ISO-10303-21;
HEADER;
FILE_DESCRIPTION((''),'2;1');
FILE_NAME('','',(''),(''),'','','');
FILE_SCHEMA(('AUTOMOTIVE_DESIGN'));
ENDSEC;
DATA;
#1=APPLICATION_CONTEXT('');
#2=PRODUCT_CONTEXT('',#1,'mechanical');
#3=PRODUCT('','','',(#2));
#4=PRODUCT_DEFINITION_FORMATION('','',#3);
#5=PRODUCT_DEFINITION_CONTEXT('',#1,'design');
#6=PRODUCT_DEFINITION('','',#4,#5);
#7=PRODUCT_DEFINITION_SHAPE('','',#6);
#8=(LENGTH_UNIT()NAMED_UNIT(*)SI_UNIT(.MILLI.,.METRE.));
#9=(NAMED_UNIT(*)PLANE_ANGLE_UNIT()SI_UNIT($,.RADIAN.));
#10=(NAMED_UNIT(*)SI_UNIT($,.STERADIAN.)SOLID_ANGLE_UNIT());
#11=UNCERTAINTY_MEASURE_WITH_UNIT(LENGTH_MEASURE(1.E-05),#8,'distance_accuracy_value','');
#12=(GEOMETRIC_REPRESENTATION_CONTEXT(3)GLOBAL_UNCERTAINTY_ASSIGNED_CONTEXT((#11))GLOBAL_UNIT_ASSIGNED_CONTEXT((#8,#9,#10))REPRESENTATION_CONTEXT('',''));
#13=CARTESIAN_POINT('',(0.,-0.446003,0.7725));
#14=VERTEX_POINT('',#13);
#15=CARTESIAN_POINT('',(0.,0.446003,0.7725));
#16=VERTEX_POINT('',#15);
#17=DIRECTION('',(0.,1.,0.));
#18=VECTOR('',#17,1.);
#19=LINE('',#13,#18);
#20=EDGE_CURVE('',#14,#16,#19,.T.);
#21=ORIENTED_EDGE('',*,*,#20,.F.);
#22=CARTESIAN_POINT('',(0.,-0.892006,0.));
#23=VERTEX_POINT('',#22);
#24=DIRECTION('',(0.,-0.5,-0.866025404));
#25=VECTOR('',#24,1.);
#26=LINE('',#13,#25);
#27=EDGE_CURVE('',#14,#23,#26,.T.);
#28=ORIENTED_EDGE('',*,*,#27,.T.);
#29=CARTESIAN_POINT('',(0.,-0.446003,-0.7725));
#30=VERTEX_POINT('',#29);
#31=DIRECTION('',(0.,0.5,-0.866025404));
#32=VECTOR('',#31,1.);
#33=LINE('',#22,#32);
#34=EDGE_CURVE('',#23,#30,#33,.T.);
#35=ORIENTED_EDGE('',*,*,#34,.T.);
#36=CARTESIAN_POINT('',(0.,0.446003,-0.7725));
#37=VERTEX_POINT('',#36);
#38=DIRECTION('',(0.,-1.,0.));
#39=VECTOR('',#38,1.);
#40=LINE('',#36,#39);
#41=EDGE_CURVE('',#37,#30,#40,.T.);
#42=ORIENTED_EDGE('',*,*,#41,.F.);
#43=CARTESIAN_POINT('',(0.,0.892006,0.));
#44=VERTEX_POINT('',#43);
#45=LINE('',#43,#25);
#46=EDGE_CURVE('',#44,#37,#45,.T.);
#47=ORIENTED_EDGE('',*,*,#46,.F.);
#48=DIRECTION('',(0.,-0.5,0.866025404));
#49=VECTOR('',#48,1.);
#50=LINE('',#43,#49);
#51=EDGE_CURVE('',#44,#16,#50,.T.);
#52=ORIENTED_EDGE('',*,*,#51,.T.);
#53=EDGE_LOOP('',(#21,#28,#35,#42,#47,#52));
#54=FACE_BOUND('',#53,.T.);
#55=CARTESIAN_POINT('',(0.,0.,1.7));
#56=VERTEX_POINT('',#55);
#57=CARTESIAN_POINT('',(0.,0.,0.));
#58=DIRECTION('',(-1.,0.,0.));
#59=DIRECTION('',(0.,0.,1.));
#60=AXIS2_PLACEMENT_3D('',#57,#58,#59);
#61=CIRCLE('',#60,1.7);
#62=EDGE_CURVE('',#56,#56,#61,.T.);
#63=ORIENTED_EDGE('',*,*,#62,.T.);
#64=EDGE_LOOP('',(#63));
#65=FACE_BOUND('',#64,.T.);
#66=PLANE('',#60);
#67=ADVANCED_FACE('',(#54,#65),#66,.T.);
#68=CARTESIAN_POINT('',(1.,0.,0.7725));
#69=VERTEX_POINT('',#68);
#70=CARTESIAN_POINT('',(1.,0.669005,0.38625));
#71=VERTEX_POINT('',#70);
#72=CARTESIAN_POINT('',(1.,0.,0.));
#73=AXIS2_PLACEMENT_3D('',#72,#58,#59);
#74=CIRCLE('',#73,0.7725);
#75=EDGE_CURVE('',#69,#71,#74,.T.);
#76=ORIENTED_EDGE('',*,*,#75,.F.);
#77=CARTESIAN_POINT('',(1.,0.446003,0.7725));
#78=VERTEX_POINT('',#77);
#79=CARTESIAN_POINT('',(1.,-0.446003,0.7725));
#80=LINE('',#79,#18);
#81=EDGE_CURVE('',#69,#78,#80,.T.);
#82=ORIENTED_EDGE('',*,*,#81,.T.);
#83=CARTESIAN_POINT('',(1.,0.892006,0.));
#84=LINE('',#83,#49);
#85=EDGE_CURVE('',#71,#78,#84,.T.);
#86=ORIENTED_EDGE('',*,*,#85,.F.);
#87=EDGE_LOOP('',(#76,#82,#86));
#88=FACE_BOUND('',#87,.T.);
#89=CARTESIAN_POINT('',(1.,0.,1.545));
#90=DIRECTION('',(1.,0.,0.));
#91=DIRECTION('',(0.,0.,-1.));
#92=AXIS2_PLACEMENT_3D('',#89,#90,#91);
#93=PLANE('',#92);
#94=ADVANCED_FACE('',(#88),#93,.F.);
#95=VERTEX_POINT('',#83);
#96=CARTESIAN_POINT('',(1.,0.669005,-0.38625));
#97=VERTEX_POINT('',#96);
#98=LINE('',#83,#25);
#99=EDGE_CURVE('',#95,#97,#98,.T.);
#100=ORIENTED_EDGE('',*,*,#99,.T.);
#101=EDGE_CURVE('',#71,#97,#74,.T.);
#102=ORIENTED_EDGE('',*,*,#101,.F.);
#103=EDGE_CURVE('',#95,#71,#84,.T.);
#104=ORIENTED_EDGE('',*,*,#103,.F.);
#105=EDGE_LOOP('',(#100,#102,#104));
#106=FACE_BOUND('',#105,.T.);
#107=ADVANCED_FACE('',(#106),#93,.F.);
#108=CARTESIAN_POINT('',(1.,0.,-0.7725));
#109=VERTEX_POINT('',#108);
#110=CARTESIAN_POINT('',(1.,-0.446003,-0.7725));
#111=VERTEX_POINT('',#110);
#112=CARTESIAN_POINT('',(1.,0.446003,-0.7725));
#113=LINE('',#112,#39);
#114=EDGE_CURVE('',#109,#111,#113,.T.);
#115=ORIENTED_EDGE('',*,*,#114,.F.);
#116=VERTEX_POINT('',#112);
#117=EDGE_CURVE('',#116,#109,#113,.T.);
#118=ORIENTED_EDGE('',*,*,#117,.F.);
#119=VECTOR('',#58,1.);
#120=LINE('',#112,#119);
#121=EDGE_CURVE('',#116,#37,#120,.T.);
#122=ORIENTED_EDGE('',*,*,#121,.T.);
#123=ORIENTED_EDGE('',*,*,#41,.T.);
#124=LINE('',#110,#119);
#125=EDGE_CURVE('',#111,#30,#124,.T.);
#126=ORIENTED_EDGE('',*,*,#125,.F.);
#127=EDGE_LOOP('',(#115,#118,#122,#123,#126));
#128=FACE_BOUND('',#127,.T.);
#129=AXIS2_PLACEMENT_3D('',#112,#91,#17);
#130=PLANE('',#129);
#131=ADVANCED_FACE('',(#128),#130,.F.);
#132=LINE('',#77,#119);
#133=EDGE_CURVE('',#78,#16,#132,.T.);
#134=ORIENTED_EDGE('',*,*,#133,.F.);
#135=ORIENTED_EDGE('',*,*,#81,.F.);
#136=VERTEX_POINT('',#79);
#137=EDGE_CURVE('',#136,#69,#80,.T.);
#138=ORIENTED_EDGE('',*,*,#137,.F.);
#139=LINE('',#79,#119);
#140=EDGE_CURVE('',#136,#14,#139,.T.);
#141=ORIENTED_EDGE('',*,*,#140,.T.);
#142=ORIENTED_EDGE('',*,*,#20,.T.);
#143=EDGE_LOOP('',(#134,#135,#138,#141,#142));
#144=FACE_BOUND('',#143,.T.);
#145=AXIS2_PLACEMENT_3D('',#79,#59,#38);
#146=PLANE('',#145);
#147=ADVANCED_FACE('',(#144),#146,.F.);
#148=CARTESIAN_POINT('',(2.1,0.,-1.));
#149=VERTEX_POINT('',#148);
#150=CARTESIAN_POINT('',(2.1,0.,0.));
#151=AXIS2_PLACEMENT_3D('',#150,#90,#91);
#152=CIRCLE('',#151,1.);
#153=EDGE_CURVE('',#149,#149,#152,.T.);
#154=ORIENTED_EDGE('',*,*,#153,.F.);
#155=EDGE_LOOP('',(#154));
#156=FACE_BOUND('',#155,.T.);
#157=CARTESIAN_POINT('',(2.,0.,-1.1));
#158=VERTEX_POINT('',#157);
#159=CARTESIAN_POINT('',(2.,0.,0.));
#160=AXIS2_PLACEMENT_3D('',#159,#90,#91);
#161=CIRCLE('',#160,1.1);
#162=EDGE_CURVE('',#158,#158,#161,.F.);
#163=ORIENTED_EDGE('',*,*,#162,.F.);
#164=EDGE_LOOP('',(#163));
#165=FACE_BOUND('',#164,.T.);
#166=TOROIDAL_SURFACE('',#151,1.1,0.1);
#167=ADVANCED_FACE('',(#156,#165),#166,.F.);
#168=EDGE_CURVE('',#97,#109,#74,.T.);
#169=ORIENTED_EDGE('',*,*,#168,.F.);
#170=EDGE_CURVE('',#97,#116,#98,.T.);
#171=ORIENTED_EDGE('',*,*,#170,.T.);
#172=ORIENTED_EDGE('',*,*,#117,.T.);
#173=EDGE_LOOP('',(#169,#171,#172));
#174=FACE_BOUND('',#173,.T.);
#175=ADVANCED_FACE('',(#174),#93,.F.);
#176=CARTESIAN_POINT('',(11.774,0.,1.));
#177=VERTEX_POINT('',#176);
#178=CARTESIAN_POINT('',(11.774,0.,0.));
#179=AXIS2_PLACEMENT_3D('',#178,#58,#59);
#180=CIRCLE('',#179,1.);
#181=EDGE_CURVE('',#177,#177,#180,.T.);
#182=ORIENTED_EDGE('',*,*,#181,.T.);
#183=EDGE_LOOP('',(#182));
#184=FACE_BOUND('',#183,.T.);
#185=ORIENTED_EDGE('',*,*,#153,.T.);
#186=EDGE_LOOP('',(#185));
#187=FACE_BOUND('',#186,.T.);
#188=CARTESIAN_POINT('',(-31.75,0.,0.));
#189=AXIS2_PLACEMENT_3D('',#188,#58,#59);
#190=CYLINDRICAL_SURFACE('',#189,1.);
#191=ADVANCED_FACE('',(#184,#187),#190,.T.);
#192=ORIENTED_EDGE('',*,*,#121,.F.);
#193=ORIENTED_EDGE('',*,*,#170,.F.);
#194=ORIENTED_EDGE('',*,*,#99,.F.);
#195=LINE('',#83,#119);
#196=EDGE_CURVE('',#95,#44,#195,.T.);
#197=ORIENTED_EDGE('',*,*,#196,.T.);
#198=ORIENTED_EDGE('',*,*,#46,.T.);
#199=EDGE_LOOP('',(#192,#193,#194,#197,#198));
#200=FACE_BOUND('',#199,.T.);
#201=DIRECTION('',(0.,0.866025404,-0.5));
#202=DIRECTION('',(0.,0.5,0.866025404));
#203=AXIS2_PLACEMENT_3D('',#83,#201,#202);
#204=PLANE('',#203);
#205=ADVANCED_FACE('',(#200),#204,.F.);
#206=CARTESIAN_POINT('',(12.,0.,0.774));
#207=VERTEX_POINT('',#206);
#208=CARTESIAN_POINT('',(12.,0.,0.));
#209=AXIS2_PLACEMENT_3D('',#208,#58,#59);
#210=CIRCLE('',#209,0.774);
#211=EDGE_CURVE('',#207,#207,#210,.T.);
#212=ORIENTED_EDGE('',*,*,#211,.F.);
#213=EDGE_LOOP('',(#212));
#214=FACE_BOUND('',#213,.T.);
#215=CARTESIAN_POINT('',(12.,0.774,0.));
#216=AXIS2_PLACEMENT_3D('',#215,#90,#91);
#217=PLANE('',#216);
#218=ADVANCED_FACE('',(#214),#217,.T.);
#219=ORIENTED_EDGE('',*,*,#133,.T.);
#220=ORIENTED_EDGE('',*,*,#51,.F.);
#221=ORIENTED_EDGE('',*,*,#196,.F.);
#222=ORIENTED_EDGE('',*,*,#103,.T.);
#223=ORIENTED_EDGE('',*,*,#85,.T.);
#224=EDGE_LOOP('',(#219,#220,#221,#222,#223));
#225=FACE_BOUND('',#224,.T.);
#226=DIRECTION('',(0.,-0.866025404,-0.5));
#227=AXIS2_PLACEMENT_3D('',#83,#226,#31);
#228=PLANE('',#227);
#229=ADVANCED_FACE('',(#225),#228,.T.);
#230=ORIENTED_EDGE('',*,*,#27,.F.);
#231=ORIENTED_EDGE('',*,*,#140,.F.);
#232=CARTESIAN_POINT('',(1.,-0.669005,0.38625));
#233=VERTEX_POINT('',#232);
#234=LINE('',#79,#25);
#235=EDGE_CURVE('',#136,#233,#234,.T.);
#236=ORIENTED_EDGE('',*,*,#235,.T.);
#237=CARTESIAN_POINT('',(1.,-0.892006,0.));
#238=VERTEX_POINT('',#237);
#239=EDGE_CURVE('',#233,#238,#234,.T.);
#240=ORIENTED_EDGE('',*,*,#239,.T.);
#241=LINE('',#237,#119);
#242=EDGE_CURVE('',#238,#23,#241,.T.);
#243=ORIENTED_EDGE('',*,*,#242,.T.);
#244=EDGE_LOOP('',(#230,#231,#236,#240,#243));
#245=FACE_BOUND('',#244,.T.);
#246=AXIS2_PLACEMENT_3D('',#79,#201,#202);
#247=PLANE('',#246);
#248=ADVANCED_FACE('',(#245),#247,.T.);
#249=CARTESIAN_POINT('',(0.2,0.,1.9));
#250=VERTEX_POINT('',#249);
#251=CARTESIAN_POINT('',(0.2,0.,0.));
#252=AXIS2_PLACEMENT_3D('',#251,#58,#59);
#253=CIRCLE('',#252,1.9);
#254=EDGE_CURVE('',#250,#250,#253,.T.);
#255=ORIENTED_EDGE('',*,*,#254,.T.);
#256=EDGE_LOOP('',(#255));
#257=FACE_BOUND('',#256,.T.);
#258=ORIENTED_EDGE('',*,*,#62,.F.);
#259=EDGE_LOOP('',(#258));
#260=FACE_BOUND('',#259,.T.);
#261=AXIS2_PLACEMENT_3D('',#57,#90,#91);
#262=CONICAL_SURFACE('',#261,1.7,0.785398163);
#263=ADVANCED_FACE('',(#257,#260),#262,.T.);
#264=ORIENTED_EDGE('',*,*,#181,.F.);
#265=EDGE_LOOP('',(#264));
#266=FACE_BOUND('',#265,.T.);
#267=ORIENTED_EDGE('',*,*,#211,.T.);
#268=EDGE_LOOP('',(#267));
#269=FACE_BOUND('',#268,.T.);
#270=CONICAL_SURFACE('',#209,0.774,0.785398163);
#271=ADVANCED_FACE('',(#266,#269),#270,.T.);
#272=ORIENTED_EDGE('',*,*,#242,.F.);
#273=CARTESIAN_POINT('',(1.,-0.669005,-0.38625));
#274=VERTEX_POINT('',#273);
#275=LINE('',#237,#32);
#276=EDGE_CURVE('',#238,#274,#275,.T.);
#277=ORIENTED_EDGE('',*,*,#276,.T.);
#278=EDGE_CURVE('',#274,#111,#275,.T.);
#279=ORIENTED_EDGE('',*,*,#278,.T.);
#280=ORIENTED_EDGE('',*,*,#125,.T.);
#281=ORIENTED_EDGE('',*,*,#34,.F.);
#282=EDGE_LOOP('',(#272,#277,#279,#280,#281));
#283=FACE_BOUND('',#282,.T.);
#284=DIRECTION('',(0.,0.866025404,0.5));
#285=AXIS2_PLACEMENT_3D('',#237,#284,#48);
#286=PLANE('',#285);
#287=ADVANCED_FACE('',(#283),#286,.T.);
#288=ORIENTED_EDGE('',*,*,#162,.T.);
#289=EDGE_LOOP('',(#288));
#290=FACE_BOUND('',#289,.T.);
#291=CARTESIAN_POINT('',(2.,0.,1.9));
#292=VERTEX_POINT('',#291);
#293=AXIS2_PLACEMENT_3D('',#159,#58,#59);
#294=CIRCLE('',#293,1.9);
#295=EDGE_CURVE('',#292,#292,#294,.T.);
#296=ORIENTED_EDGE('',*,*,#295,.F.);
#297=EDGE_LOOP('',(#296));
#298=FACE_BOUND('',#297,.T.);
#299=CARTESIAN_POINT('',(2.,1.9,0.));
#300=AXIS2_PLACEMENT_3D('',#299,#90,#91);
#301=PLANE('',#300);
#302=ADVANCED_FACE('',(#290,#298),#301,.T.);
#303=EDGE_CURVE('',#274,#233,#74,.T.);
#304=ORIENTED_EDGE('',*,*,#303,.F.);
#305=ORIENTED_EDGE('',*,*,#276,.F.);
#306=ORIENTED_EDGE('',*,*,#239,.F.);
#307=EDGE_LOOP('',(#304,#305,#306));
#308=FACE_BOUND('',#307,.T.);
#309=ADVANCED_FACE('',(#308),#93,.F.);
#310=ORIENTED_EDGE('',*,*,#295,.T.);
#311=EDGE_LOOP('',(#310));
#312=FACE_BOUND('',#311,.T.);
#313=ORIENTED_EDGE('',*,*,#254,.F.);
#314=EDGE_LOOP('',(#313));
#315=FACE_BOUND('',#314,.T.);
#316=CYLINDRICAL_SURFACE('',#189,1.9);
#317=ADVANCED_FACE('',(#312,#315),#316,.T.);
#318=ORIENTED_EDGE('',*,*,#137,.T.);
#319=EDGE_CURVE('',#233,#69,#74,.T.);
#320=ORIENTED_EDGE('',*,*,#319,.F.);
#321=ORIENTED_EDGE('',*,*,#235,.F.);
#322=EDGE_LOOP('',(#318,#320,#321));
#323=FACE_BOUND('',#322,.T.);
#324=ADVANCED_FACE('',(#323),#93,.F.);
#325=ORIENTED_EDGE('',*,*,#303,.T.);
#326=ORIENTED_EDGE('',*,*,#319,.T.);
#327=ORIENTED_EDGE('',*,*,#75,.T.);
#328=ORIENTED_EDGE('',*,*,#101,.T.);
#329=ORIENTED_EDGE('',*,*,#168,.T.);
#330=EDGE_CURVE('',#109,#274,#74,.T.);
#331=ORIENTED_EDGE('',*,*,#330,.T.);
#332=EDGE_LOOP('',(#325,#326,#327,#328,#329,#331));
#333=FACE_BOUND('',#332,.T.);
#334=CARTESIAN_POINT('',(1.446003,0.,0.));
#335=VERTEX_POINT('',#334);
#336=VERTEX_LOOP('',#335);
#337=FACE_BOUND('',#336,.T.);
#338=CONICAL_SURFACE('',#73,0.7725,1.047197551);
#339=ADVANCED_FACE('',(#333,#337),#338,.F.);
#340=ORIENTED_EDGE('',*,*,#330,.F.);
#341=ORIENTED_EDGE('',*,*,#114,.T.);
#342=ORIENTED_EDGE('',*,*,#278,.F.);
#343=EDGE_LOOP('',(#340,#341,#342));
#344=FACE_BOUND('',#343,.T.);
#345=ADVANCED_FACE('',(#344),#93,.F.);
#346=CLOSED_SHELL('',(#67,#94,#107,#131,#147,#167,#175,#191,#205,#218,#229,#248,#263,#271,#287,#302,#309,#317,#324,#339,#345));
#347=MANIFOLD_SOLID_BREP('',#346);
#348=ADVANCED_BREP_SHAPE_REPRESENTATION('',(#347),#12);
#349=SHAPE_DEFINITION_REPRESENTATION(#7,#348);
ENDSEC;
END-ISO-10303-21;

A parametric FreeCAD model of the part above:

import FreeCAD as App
import Part
import Sketcher
from FreeCAD import Vector
Q = App.Units.Quantity


def edges_at(feature, points):
    """Names of the edges that pass closest to the given points."""
    edges = feature.Shape.Edges
    near = lambda p: min(range(len(edges)), key=lambda i: edges[i].distToShape(Part.Vertex(*p))[0])
    return sorted({f"Edge{near(p) + 1}" for p in points})

doc = App.newDocument("Part")
body = doc.addObject("PartDesign::Body", "Body")

sketch1 = doc.addObject("Sketcher::SketchObject", "Sketch")
body.addObject(sketch1)
sketch1.AttachmentSupport = (doc.XY_Plane, [""])
sketch1.MapMode = "FlatFace"
sketch1.addGeometry(Part.LineSegment(Vector(0, 1.7, 0), Vector(0, 0, 0)), False)
sketch1.addGeometry(Part.LineSegment(Vector(0, 0, 0), Vector(12, 0, 0)), False)
sketch1.addGeometry(Part.LineSegment(Vector(12, 0, 0), Vector(12, 0.77, 0)), False)
sketch1.addGeometry(Part.LineSegment(Vector(12, 0.77, 0), Vector(11.77, 1, 0)), False)
sketch1.addGeometry(Part.LineSegment(Vector(11.77, 1, 0), Vector(2, 1, 0)), False)
sketch1.addGeometry(Part.LineSegment(Vector(2, 1, 0), Vector(2, 1.9, 0)), False)
sketch1.addGeometry(Part.LineSegment(Vector(2, 1.9, 0), Vector(0.2, 1.9, 0)), False)
sketch1.addGeometry(Part.LineSegment(Vector(0.2, 1.9, 0), Vector(0, 1.7, 0)), False)
sketch1.addConstraint(Sketcher.Constraint("Coincident", 0, 2, 1, 1))
sketch1.addConstraint(Sketcher.Constraint("Coincident", 1, 2, 2, 1))
sketch1.addConstraint(Sketcher.Constraint("Coincident", 2, 2, 3, 1))
sketch1.addConstraint(Sketcher.Constraint("Coincident", 3, 2, 4, 1))
sketch1.addConstraint(Sketcher.Constraint("Coincident", 4, 2, 5, 1))
sketch1.addConstraint(Sketcher.Constraint("Coincident", 5, 2, 6, 1))
sketch1.addConstraint(Sketcher.Constraint("Coincident", 6, 2, 7, 1))
sketch1.addConstraint(Sketcher.Constraint("Coincident", 7, 2, 0, 1))
sketch1.addConstraint(Sketcher.Constraint("Vertical", 0))
sketch1.addConstraint(Sketcher.Constraint("Horizontal", 1))
sketch1.addConstraint(Sketcher.Constraint("Vertical", 2))
sketch1.addConstraint(Sketcher.Constraint("Horizontal", 4))
sketch1.addConstraint(Sketcher.Constraint("Vertical", 5))
sketch1.addConstraint(Sketcher.Constraint("Horizontal", 6))
sketch1.addConstraint(Sketcher.Constraint("Coincident", 0, 2, -1, 1))
sketch1.addConstraint(Sketcher.Constraint("Perpendicular", 3, 7))
sketch1.addConstraint(Sketcher.Constraint("DistanceX", 1, 1, 1, 2, Q("12 mm")))
sketch1.addConstraint(Sketcher.Constraint("Angle", 3, Q("135 deg")))
sketch1.addConstraint(Sketcher.Constraint("DistanceX", 6, 2, 6, 1, Q("1.8 mm")))
sketch1.addConstraint(Sketcher.Constraint("DistanceY", 0, 2, 0, 1, Q("1.7 mm")))
sketch1.addConstraint(Sketcher.Constraint("DistanceY", 5, 1, 5, 2, Q("0.9 mm")))
sketch1.addConstraint(Sketcher.Constraint("DistanceY", -1, 1, 3, 2, Q("1 mm")))
sketch1.addConstraint(Sketcher.Constraint("DistanceX", 4, 2, 4, 1, Q("9.774 mm")))
revolution = doc.addObject("PartDesign::Revolution", "Revolution")
body.addObject(revolution)
revolution.Profile = sketch1
revolution.ReferenceAxis = (sketch1, ["H_Axis"])
revolution.Angle = 360
doc.recompute()

fillet = doc.addObject("PartDesign::Fillet", "Fillet")
body.addObject(fillet)
fillet.Base = (revolution, edges_at(revolution, [(2, -1, 0)]))
fillet.Radius = 0.1

sketch2 = doc.addObject("Sketcher::SketchObject", "Sketch001")
body.addObject(sketch2)
sketch2.AttachmentSupport = (doc.XY_Plane, [""])
sketch2.MapMode = "FlatFace"
sketch2.addGeometry(Part.LineSegment(Vector(1, 0.8, 0), Vector(0, 0.8, 0)), False)
sketch2.addGeometry(Part.LineSegment(Vector(0, 0.8, 0), Vector(0, 0, 0)), False)
sketch2.addGeometry(Part.LineSegment(Vector(0, 0, 0), Vector(1.4, 0, 0)), False)
sketch2.addGeometry(Part.LineSegment(Vector(1.4, 0, 0), Vector(1, 0.8, 0)), False)
sketch2.addConstraint(Sketcher.Constraint("Coincident", 0, 2, 1, 1))
sketch2.addConstraint(Sketcher.Constraint("Coincident", 1, 2, 2, 1))
sketch2.addConstraint(Sketcher.Constraint("Coincident", 2, 2, 3, 1))
sketch2.addConstraint(Sketcher.Constraint("Coincident", 3, 2, 0, 1))
sketch2.addConstraint(Sketcher.Constraint("Horizontal", 0))
sketch2.addConstraint(Sketcher.Constraint("Vertical", 1))
sketch2.addConstraint(Sketcher.Constraint("Horizontal", 2))
sketch2.addConstraint(Sketcher.Constraint("Coincident", 1, 2, -1, 1))
sketch2.addConstraint(Sketcher.Constraint("DistanceX", 0, 2, 0, 1, Q("1 mm")))
sketch2.addConstraint(Sketcher.Constraint("Angle", 3, Q("120 deg")))
sketch2.addConstraint(Sketcher.Constraint("DistanceY", 1, 2, 1, 1, Q("0.7725 mm")))
groove = doc.addObject("PartDesign::Groove", "Groove")
body.addObject(groove)
groove.Profile = sketch2
groove.ReferenceAxis = (sketch2, ["H_Axis"])
groove.Angle = 360

sketch3 = doc.addObject("Sketcher::SketchObject", "Sketch002")
body.addObject(sketch3)
sketch3.AttachmentSupport = (doc.YZ_Plane, [""])
sketch3.MapMode = "FlatFace"
sketch3.addGeometry(Part.LineSegment(Vector(0.9, 0, 0), Vector(0.4, -0.8, 0)), False)
sketch3.addGeometry(Part.LineSegment(Vector(0.4, -0.8, 0), Vector(-0.4, -0.8, 0)), False)
sketch3.addGeometry(Part.LineSegment(Vector(-0.4, -0.8, 0), Vector(-0.9, 0, 0)), False)
sketch3.addGeometry(Part.LineSegment(Vector(-0.9, 0, 0), Vector(-0.4, 0.8, 0)), False)
sketch3.addGeometry(Part.LineSegment(Vector(-0.4, 0.8, 0), Vector(0.4, 0.8, 0)), False)
sketch3.addGeometry(Part.LineSegment(Vector(0.4, 0.8, 0), Vector(0.9, 0, 0)), False)
sketch3.addConstraint(Sketcher.Constraint("Coincident", 0, 2, 1, 1))
sketch3.addConstraint(Sketcher.Constraint("Coincident", 1, 2, 2, 1))
sketch3.addConstraint(Sketcher.Constraint("Coincident", 2, 2, 3, 1))
sketch3.addConstraint(Sketcher.Constraint("Coincident", 3, 2, 4, 1))
sketch3.addConstraint(Sketcher.Constraint("Coincident", 4, 2, 5, 1))
sketch3.addConstraint(Sketcher.Constraint("Coincident", 5, 2, 0, 1))
sketch3.addConstraint(Sketcher.Constraint("Horizontal", 1))
sketch3.addConstraint(Sketcher.Constraint("Horizontal", 4))
sketch3.addConstraint(Sketcher.Constraint("Symmetric", 0, 2, 3, 2, -1, 1))
sketch3.addConstraint(Sketcher.Constraint("Symmetric", 2, 2, 5, 2, -1, 1))
sketch3.addConstraint(Sketcher.Constraint("PointOnObject", 2, 2, -1))
sketch3.addConstraint(Sketcher.Constraint("Parallel", 2, 5))
sketch3.addConstraint(Sketcher.Constraint("Vertical", 1, 2, 3, 2))
sketch3.addConstraint(Sketcher.Constraint("Angle", 0, Q("-120 deg")))
sketch3.addConstraint(Sketcher.Constraint("DistanceY", 1, 2, 3, 2, Q("1.545 mm")))
sketch3.addConstraint(Sketcher.Constraint("DistanceX", 1, 2, 1, 1, Q("0.892006 mm")))
pocket1 = doc.addObject("PartDesign::Pocket", "Pocket")
body.addObject(pocket1)
pocket1.Profile = sketch3
pocket1.Length = 1
pocket1.Reversed = True

doc.recompute()
